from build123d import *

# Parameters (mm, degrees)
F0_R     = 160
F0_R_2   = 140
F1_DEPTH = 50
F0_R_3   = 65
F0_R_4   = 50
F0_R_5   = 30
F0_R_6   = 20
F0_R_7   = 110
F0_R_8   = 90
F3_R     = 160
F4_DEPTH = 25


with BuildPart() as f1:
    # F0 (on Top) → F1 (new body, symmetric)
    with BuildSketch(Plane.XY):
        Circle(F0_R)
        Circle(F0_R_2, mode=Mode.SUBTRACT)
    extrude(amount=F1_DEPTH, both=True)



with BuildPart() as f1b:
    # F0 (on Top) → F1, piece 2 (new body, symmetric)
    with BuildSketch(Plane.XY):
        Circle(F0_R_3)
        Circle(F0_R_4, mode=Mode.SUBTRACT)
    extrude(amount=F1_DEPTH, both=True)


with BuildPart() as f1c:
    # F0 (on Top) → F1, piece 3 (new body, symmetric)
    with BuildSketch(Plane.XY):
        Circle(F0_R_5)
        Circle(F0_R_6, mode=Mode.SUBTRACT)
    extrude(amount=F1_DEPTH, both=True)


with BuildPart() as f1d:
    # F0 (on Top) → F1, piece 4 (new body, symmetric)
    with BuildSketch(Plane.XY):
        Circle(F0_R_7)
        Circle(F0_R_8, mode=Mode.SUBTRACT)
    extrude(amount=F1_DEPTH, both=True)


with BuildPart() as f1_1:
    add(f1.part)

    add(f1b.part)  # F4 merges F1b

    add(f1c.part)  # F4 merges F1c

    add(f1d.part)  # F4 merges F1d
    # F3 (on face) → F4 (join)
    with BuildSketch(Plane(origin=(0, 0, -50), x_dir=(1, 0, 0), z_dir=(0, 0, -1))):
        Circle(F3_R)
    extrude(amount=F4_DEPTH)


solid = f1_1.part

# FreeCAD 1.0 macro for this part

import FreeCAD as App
import Part
import Sketcher
Q = App.Units.Quantity

doc = App.newDocument("Part")
body = doc.addObject("PartDesign::Body", "Body")

sketch1 = body.newObject("Sketcher::SketchObject", "Sketch")
sketch1.AttachmentSupport = (doc.getObject("XY_Plane"), [""])
sketch1.MapMode = "FlatFace"
sketch1.addGeometry(Part.Circle(App.Vector(0, 0, 0), App.Vector(0, 0, 1), 160), False)
sketch1.addGeometry(Part.Circle(App.Vector(0, 0, 0), App.Vector(0, 0, 1), 140), False)
sketch1.addConstraint(Sketcher.Constraint("Coincident", 0, 3, -1, 1))
sketch1.addConstraint(Sketcher.Constraint("Coincident", 1, 3, -1, 1))
sketch1.addConstraint(Sketcher.Constraint("Diameter", 0, Q("320 mm")))
sketch1.addConstraint(Sketcher.Constraint("Diameter", 1, Q("280 mm")))
pad1 = body.newObject("PartDesign::Pad", "Pad")
pad1.Profile = sketch1
pad1.Length = 100
pad1.Midplane = True
body2 = doc.addObject("PartDesign::Body", "Body001")

sketch2 = body2.newObject("Sketcher::SketchObject", "Sketch001")
sketch2.AttachmentSupport = (doc.getObject("XY_Plane001"), [""])
sketch2.MapMode = "FlatFace"
sketch2.addGeometry(Part.Circle(App.Vector(0, 0, 0), App.Vector(0, 0, 1), 65), False)
sketch2.addGeometry(Part.Circle(App.Vector(0, 0, 0), App.Vector(0, 0, 1), 50), False)
sketch2.addConstraint(Sketcher.Constraint("Coincident", 0, 3, -1, 1))
sketch2.addConstraint(Sketcher.Constraint("Coincident", 1, 3, -1, 1))
sketch2.addConstraint(Sketcher.Constraint("Diameter", 0, Q("130 mm")))
sketch2.addConstraint(Sketcher.Constraint("Diameter", 1, Q("100 mm")))
pad2 = body2.newObject("PartDesign::Pad", "Pad001")
pad2.Profile = sketch2
pad2.Length = 100
pad2.Midplane = True
body3 = doc.addObject("PartDesign::Body", "Body002")

sketch3 = body3.newObject("Sketcher::SketchObject", "Sketch002")
sketch3.AttachmentSupport = (doc.getObject("XY_Plane002"), [""])
sketch3.MapMode = "FlatFace"
sketch3.addGeometry(Part.Circle(App.Vector(0, 0, 0), App.Vector(0, 0, 1), 30), False)
sketch3.addGeometry(Part.Circle(App.Vector(0, 0, 0), App.Vector(0, 0, 1), 20), False)
sketch3.addConstraint(Sketcher.Constraint("Coincident", 0, 3, -1, 1))
sketch3.addConstraint(Sketcher.Constraint("Coincident", 1, 3, -1, 1))
sketch3.addConstraint(Sketcher.Constraint("Diameter", 0, Q("60 mm")))
sketch3.addConstraint(Sketcher.Constraint("Diameter", 1, Q("40 mm")))
pad3 = body3.newObject("PartDesign::Pad", "Pad002")
pad3.Profile = sketch3
pad3.Length = 100
pad3.Midplane = True
body4 = doc.addObject("PartDesign::Body", "Body003")

sketch4 = body4.newObject("Sketcher::SketchObject", "Sketch003")
sketch4.AttachmentSupport = (doc.getObject("XY_Plane003"), [""])
sketch4.MapMode = "FlatFace"
sketch4.addGeometry(Part.Circle(App.Vector(0, 0, 0), App.Vector(0, 0, 1), 110), False)
sketch4.addGeometry(Part.Circle(App.Vector(0, 0, 0), App.Vector(0, 0, 1), 90), False)
sketch4.addConstraint(Sketcher.Constraint("Coincident", 0, 3, -1, 1))
sketch4.addConstraint(Sketcher.Constraint("Coincident", 1, 3, -1, 1))
sketch4.addConstraint(Sketcher.Constraint("Diameter", 0, Q("220 mm")))
sketch4.addConstraint(Sketcher.Constraint("Diameter", 1, Q("180 mm")))
pad4 = body4.newObject("PartDesign::Pad", "Pad003")
pad4.Profile = sketch4
pad4.Length = 100
pad4.Midplane = True
body.AllowCompound = True
doc.recompute()

boolean = body.newObject("PartDesign::Boolean", "Boolean")
boolean.Type = "Fuse"
boolean.addObjects([body2])
doc.recompute()

boolean2 = body.newObject("PartDesign::Boolean", "Boolean001")
boolean2.Type = "Fuse"
boolean2.addObjects([body3])
doc.recompute()

boolean3 = body.newObject("PartDesign::Boolean", "Boolean002")
boolean3.Type = "Fuse"
boolean3.addObjects([body4])

sketch5 = body.newObject("Sketcher::SketchObject", "Sketch004")
sketch5.AttachmentSupport = (doc.getObject("XY_Plane"), [""])
sketch5.MapMode = "FlatFace"
sketch5.AttachmentOffset = App.Placement(App.Vector(0, 0, -50), App.Rotation())
sketch5.addGeometry(Part.Circle(App.Vector(0, 0, 0), App.Vector(0, 0, 1), 160), False)
sketch5.addConstraint(Sketcher.Constraint("Coincident", 0, 3, -1, 1))
sketch5.addConstraint(Sketcher.Constraint("Diameter", 0, Q("320 mm")))
pad5 = body.newObject("PartDesign::Pad", "Pad004")
pad5.Profile = sketch5
pad5.Length = 25
pad5.Reversed = True

doc.recompute()
